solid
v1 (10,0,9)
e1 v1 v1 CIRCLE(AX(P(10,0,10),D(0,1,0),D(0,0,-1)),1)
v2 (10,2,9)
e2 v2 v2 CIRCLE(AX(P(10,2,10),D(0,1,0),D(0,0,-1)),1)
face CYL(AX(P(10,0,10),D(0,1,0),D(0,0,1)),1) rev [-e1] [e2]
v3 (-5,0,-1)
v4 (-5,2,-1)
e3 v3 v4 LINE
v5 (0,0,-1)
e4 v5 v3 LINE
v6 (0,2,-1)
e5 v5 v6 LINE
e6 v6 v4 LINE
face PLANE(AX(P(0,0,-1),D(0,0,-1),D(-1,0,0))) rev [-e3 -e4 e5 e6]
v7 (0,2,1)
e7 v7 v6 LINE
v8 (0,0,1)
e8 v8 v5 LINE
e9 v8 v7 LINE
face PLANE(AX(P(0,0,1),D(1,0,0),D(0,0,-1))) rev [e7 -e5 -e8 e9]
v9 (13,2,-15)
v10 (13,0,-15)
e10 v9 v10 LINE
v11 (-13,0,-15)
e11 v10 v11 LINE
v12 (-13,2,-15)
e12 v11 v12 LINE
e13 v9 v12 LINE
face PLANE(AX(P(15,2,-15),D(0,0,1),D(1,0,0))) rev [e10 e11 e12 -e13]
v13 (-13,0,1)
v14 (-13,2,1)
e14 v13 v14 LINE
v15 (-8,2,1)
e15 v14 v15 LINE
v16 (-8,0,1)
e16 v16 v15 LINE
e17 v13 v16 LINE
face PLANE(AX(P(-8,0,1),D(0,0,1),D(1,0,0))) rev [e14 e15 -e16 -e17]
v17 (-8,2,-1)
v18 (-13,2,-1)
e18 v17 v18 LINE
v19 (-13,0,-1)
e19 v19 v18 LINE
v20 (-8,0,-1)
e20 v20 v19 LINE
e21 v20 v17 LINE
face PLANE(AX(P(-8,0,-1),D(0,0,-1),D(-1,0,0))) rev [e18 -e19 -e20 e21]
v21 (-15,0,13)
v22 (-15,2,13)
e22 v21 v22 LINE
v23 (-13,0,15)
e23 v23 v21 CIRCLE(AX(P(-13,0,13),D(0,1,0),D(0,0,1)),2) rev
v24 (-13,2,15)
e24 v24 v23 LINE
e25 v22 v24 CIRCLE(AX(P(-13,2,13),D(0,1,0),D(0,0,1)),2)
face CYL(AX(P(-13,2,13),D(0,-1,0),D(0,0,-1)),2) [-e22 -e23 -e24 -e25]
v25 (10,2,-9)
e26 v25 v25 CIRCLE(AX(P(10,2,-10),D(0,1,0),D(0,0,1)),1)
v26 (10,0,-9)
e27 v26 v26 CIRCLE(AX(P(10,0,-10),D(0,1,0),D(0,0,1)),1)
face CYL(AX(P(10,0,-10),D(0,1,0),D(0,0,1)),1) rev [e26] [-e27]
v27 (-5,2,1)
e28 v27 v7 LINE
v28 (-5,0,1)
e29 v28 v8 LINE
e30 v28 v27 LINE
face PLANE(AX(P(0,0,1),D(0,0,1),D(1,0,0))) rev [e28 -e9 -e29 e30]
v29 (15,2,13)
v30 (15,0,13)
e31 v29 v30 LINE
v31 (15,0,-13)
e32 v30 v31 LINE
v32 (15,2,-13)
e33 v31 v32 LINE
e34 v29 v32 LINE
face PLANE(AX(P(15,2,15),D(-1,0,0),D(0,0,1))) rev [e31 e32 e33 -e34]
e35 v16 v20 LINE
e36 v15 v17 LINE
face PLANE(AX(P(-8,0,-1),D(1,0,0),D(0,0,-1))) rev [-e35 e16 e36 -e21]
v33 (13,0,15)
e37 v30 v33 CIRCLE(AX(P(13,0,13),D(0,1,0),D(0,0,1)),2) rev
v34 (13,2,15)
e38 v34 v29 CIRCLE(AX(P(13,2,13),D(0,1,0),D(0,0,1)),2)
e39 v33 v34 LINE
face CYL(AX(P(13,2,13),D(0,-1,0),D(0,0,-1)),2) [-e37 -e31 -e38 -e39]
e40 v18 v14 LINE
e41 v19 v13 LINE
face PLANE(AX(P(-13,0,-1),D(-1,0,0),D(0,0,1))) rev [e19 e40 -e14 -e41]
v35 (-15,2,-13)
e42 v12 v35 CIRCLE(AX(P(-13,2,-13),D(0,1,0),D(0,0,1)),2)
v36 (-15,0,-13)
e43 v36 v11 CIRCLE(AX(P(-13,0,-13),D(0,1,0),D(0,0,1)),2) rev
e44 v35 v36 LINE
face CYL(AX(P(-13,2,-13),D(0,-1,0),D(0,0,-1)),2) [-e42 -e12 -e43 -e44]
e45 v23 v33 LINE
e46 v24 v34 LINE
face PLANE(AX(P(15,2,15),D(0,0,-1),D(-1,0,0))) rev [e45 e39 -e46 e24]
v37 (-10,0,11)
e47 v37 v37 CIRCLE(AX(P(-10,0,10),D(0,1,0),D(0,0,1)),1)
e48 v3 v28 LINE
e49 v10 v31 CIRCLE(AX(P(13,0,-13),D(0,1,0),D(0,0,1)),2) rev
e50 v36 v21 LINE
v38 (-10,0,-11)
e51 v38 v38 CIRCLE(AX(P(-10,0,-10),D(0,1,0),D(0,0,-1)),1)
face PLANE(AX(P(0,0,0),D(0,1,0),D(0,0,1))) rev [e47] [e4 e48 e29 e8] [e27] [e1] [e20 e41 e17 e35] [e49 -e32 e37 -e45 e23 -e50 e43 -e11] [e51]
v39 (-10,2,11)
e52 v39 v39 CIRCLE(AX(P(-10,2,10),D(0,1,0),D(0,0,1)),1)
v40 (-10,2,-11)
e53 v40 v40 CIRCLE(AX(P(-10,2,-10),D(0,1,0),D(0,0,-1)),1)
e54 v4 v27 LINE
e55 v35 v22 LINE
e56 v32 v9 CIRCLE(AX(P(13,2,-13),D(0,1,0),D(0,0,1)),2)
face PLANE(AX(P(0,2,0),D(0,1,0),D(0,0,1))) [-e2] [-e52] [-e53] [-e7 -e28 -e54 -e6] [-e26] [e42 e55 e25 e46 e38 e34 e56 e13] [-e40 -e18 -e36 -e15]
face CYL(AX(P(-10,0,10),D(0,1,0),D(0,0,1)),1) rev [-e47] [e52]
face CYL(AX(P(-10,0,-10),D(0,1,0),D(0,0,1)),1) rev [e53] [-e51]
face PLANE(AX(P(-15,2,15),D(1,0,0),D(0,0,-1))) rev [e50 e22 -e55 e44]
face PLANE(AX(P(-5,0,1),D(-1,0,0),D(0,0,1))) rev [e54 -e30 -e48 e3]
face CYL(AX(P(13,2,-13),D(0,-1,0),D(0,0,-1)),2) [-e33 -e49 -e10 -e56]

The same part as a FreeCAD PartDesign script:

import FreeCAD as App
import Part
import Sketcher
Q = App.Units.Quantity


def edges_at(feature, points):
    """Names of the edges that pass closest to the given points."""
    edges = feature.Shape.Edges
    near = lambda p: min(range(len(edges)), key=lambda i: edges[i].distToShape(Part.Vertex(*p))[0])
    return sorted({f"Edge{near(p) + 1}" for p in points})


def add_polygon(sketch, points):
    """Adds a closed chain of lines whose ends are joined by coincident constraints."""
    first, n = sketch.GeometryCount, len(points)
    for a, b in zip(points, points[1:] + points[:1]):
        sketch.addGeometry(Part.LineSegment(App.Vector(*a, 0), App.Vector(*b, 0)), False)
    for i in range(n):
        sketch.addConstraint(Sketcher.Constraint("Coincident", first + i, 2, first + (i + 1) % n, 1))

doc = App.newDocument("Part")
body = doc.addObject("PartDesign::Body", "Body")

sketch1 = doc.addObject("Sketcher::SketchObject", "Sketch")
body.addObject(sketch1)
sketch1.AttachmentSupport = (doc.XZ_Plane, [""])
sketch1.MapMode = "FlatFace"
add_polygon(sketch1, [(-15, -15), (-15, 15), (15, 15), (15, -15)])
sketch1.addConstraint([
    Sketcher.Constraint("Vertical", 0),
    Sketcher.Constraint("Horizontal", 1),
    Sketcher.Constraint("Vertical", 2),
    Sketcher.Constraint("Horizontal", 3),
    Sketcher.Constraint("Symmetric", 0, 2, 2, 2, -1, 1),
    Sketcher.Constraint("Equal", 3, 0),
    Sketcher.Constraint("DistanceX", 1, 1, 1, 2, Q("30 mm")),
])
pad1 = doc.addObject("PartDesign::Pad", "Pad")
body.addObject(pad1)
pad1.Profile = sketch1
pad1.Length = 2
pad1.Reversed = True

sketch2 = doc.addObject("Sketcher::SketchObject", "Sketch001")
body.addObject(sketch2)
sketch2.AttachmentSupport = (doc.XZ_Plane, [""])
sketch2.MapMode = "FlatFace"
sketch2.AttachmentOffset = App.Placement(App.Vector(0, 0, -2), App.Rotation())
sketch2.addGeometry(Part.Circle(App.Vector(10, -10, 0), App.Vector(0, 0, 1), 1), False)
sketch2.addGeometry(Part.Circle(App.Vector(10, 10, 0), App.Vector(0, 0, 1), 1), False)
sketch2.addGeometry(Part.Circle(App.Vector(-10, 10, 0), App.Vector(0, 0, 1), 1), False)
sketch2.addGeometry(Part.Circle(App.Vector(-10, -10, 0), App.Vector(0, 0, 1), 1), False)
add_polygon(sketch2, [(-5, -1), (-5, 1), (0, 1), (0, -1)])
add_polygon(sketch2, [(-13, -1), (-13, 1), (-8, 1), (-8, -1)])
sketch2.addConstraint([
    Sketcher.Constraint("Vertical", 4),
    Sketcher.Constraint("Horizontal", 5),
    Sketcher.Constraint("Vertical", 6),
    Sketcher.Constraint("Horizontal", 7),
    Sketcher.Constraint("Vertical", 8),
    Sketcher.Constraint("Horizontal", 9),
    Sketcher.Constraint("Vertical", 10),
    Sketcher.Constraint("Horizontal", 11),
    Sketcher.Constraint("Equal", 0, 1),
    Sketcher.Constraint("Equal", 1, 2),
    Sketcher.Constraint("Equal", 2, 3),
    Sketcher.Constraint("Symmetric", 0, 3, 2, 3, -1, 1),
    Sketcher.Constraint("Symmetric", 1, 3, 3, 3, -1, 1),
    Sketcher.Constraint("Symmetric", 5, 2, 6, 2, -1, 1),
    Sketcher.Constraint("Symmetric", 1, 3, 2, 3, -2),
    Sketcher.Constraint("Horizontal", 5, 2, 8, 2),
    Sketcher.Constraint("Horizontal", 7, 2, 10, 2),
    Sketcher.Constraint("Equal", 7, 9),
    Sketcher.Constraint("Diameter", 0, Q("2 mm")),
    Sketcher.Constraint("DistanceX", 5, 1, 5, 2, Q("5 mm")),
    Sketcher.Constraint("DistanceY", 4, 1, 4, 2, Q("2 mm")),
    Sketcher.Constraint("DistanceX", -1, 1, 0, 3, Q("10 mm")),
    Sketcher.Constraint("DistanceY", 0, 3, -1, 1, Q("10 mm")),
    Sketcher.Constraint("DistanceX", 8, 2, -1, 1, Q("13 mm")),
])
pocket1 = doc.addObject("PartDesign::Pocket", "Pocket")
body.addObject(pocket1)
pocket1.Profile = sketch2
pocket1.Length = 2
pocket1.Reversed = True
doc.recompute()

fillet = doc.addObject("PartDesign::Fillet", "Fillet")
body.addObject(fillet)
fillet.Base = (pocket1, edges_at(pocket1, [
    (-15, 1, -15),
    (15, 1, -15),
    (15, 1, 15),
    (-15, 1, 15),
]))
fillet.Radius = 2

doc.recompute()
